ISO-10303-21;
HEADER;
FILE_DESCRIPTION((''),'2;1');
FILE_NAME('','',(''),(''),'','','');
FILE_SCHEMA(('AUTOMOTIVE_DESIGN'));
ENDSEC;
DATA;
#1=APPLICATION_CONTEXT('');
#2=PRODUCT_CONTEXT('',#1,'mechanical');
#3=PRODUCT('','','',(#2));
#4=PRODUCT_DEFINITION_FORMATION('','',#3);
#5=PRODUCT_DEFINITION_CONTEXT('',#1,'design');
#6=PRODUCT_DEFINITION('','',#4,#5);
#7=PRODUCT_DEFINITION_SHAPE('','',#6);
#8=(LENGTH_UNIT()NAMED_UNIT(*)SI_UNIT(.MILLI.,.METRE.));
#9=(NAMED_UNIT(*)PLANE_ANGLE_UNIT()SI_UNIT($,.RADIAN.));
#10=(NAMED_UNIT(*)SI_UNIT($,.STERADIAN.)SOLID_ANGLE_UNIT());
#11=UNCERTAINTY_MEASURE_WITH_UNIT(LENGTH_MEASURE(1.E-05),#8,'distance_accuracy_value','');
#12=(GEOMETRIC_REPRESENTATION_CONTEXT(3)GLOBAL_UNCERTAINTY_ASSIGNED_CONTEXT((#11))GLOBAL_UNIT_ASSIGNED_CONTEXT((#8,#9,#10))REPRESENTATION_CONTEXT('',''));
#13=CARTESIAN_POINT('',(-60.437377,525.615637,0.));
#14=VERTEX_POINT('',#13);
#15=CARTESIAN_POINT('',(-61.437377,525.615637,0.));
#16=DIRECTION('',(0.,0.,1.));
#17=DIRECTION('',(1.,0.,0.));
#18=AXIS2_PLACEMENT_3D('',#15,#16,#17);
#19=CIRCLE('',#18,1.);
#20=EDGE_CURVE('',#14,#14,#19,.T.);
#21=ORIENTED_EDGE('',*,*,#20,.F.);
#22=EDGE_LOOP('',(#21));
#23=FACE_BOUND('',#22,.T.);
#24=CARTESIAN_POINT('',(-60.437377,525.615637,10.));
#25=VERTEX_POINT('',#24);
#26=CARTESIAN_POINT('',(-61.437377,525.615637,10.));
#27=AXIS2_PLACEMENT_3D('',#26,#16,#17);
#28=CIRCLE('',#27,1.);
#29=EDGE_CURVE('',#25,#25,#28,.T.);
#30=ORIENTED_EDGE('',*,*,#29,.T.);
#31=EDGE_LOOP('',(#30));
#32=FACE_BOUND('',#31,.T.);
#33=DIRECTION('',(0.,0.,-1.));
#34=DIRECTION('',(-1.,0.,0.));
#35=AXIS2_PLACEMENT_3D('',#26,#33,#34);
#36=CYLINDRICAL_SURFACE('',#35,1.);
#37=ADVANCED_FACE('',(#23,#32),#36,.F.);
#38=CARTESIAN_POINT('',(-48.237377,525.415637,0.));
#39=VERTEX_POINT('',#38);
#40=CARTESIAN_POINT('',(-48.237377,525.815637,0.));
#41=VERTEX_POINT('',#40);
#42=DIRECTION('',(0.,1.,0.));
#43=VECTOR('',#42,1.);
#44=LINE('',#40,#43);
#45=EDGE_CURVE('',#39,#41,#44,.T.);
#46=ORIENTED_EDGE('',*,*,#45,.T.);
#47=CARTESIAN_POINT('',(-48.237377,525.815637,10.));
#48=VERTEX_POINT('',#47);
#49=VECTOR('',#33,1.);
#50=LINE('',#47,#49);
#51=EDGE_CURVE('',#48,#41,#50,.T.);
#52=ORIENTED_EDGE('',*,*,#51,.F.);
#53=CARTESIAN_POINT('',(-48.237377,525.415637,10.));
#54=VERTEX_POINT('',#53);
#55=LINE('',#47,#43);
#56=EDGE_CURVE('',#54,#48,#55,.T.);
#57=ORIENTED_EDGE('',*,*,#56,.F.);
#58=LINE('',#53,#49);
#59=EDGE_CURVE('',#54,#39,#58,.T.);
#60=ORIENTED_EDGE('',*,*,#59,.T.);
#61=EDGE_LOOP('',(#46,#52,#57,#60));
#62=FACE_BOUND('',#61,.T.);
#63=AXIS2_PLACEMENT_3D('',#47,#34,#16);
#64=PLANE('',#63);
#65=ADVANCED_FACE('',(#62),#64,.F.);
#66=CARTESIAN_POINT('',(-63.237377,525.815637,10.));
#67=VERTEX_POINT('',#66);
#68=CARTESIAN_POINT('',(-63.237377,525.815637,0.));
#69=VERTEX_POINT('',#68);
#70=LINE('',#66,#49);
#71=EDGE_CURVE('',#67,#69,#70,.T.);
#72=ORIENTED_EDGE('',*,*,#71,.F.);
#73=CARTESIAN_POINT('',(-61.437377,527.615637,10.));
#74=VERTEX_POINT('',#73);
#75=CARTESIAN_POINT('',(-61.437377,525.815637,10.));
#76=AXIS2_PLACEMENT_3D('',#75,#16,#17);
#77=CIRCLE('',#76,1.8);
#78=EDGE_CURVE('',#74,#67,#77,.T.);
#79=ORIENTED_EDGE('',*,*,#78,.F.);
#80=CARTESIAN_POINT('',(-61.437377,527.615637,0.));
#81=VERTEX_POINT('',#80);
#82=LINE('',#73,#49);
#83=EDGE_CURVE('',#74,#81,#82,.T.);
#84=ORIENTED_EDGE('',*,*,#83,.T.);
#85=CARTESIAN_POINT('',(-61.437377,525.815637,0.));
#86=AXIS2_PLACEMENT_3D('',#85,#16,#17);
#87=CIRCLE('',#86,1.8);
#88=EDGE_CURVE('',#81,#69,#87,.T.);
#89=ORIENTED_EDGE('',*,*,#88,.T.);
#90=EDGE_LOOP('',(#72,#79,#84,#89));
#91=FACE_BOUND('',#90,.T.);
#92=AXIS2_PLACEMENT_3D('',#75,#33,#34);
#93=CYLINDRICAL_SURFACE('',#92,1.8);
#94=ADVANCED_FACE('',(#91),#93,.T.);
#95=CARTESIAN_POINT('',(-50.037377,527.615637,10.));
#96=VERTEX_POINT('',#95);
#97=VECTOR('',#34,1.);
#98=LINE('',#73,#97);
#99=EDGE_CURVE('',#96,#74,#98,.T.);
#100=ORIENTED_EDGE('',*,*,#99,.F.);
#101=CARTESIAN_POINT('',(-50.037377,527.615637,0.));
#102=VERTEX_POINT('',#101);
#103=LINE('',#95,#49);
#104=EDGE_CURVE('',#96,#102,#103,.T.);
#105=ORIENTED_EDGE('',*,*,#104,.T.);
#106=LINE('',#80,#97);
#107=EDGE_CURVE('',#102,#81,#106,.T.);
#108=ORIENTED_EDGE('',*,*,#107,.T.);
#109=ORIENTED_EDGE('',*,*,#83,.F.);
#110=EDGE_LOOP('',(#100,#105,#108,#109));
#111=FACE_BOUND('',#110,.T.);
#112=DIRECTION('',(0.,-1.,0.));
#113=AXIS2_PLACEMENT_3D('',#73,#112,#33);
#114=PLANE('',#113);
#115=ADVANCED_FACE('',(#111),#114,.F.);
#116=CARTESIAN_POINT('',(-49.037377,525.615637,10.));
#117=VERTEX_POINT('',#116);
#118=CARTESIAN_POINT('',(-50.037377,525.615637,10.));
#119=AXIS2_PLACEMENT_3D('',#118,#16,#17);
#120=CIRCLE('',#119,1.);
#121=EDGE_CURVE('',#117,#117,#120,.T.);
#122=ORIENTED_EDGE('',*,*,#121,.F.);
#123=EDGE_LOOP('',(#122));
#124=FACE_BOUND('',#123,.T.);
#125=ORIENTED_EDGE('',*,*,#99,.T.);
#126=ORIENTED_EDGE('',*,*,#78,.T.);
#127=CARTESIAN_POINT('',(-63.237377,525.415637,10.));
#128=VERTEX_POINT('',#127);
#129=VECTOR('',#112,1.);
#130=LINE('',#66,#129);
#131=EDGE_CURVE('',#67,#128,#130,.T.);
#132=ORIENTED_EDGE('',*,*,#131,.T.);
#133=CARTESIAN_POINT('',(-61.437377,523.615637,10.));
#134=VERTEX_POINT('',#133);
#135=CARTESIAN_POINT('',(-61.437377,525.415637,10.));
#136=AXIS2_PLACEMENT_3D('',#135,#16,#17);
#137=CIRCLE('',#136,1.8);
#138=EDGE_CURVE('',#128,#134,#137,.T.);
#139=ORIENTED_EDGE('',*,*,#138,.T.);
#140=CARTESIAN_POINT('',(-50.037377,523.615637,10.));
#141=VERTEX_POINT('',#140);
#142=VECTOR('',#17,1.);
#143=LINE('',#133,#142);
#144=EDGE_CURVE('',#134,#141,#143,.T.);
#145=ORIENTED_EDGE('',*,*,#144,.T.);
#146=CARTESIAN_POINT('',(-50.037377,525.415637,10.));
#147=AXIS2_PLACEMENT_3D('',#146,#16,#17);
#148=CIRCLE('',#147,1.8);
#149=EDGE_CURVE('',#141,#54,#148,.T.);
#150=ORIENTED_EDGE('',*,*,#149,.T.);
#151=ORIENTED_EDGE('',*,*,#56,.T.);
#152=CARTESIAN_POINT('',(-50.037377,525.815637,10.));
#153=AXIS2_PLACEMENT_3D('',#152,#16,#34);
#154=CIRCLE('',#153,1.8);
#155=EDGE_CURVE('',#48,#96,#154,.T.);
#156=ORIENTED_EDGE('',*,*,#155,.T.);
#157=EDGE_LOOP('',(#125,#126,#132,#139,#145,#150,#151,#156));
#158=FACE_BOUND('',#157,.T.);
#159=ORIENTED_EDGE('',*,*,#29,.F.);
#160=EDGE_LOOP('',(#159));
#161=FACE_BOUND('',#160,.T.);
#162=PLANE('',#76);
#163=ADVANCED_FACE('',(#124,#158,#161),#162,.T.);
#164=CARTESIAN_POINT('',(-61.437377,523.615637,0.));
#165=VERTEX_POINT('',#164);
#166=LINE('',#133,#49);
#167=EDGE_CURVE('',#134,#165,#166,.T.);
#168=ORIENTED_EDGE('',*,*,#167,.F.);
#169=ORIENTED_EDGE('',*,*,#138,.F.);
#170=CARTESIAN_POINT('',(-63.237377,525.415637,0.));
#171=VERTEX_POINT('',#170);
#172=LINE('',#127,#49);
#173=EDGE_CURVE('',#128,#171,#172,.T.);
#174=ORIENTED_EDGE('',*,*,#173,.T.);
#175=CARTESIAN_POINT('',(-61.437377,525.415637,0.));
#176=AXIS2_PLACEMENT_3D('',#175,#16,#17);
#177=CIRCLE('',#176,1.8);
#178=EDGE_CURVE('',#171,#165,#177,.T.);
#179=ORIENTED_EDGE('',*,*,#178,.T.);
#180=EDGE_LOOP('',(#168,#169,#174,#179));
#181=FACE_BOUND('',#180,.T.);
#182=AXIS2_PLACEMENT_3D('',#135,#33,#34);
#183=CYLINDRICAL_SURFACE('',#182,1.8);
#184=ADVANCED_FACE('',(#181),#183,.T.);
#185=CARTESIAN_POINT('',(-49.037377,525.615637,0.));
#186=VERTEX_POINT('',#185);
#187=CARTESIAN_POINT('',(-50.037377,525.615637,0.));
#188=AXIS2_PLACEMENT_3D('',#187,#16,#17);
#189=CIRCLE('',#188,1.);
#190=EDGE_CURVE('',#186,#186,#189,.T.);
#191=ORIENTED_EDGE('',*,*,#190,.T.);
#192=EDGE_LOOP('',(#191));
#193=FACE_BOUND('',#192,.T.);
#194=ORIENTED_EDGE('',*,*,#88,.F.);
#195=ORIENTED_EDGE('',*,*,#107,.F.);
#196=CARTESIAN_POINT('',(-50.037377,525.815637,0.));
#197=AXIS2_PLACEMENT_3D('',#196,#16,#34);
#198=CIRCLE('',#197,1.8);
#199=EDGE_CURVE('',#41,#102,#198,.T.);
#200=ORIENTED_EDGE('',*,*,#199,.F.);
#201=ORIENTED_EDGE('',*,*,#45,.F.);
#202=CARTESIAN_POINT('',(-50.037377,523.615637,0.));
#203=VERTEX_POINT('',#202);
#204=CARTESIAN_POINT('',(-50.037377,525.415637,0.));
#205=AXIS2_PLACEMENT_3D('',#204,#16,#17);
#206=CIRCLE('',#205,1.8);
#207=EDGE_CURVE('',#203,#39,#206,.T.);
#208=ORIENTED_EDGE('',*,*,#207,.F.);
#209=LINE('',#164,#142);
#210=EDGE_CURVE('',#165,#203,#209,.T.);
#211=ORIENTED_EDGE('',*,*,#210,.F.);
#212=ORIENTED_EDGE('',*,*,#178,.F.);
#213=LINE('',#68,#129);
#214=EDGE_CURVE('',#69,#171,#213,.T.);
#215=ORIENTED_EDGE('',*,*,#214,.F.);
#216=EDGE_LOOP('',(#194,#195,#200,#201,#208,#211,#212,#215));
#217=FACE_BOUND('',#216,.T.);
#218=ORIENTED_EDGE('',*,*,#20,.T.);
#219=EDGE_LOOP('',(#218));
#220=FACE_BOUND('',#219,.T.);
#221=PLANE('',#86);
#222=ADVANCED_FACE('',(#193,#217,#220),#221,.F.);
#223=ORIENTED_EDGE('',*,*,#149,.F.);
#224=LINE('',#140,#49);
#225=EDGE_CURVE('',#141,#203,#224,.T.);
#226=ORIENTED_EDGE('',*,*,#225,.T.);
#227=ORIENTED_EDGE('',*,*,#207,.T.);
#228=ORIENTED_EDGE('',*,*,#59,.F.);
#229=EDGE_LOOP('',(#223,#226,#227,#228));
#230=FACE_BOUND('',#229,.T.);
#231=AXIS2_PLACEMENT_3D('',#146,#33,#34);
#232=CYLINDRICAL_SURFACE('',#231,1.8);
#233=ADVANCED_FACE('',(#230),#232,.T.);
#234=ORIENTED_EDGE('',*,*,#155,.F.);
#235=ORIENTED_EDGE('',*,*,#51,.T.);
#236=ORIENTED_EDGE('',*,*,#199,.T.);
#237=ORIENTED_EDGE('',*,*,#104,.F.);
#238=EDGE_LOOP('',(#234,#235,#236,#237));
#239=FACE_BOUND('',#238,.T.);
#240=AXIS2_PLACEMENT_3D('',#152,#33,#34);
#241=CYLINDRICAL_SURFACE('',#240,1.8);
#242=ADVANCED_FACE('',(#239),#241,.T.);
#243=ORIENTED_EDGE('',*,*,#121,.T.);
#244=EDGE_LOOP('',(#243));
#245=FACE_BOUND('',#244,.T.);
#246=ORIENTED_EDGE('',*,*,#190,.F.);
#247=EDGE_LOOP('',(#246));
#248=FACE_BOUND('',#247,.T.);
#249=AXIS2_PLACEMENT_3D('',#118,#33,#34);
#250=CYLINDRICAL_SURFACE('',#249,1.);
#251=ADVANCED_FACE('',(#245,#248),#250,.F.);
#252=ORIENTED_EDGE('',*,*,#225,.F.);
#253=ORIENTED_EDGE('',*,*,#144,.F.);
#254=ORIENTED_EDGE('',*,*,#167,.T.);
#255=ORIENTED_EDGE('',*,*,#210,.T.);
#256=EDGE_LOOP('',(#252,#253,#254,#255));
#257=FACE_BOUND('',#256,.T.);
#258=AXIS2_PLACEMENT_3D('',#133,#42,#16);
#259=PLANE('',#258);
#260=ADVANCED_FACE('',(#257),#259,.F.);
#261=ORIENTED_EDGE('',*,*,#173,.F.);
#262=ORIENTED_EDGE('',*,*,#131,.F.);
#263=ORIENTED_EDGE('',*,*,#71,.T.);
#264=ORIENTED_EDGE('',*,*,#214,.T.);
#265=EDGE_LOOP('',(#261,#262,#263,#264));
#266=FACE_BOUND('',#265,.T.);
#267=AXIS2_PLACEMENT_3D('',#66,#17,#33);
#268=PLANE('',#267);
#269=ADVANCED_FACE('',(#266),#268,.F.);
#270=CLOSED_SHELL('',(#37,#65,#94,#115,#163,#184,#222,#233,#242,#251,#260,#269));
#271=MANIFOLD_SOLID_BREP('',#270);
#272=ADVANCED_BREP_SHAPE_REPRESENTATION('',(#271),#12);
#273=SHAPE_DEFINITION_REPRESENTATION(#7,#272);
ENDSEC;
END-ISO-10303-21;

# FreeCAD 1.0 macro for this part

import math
import FreeCAD as App
import Part
import Sketcher

V = App.Vector

doc = App.newDocument("Part")
body = doc.addObject("PartDesign::Body", "Body")

# Sketch on XY plane
sketch1 = body.newObject("Sketcher::SketchObject", "Sketch")
sketch1.AttachmentSupport = (doc.getObject("XY_Plane"), [""])
sketch1.MapMode = "FlatFace"
sketch1.addGeometry([
    Part.LineSegment(V(-50.04, 527.62, 0), V(-61.44, 527.62, 0)),  # 0
    Part.ArcOfCircle(Part.Circle(V(-61.44, 525.82, 0), V(0, 0, 1), 1.8), math.radians(90), math.radians(180)),  # 1
    Part.LineSegment(V(-63.24, 525.82, 0), V(-63.24, 525.42, 0)),  # 2
    Part.ArcOfCircle(Part.Circle(V(-61.44, 525.42, 0), V(0, 0, 1), 1.8), math.radians(180), math.radians(270)),  # 3
    Part.LineSegment(V(-61.44, 523.62, 0), V(-50.04, 523.62, 0)),  # 4
    Part.ArcOfCircle(Part.Circle(V(-50.04, 525.42, 0), V(0, 0, 1), 1.8), math.radians(-90), math.radians(0)),  # 5
    Part.LineSegment(V(-48.24, 525.42, 0), V(-48.24, 525.82, 0)),  # 6
    Part.ArcOfCircle(Part.Circle(V(-50.04, 525.82, 0), V(0, 0, 1), 1.8), math.radians(0), math.radians(90)),  # 7
    Part.Circle(V(-50.04, 525.62, 0), V(0, 0, 1), 1),  # 8
    Part.Circle(V(-61.44, 525.62, 0), V(0, 0, 1), 1),  # 9
], False)
sketch1.addConstraint([
    Sketcher.Constraint("Tangent", 0, 2, 1, 1),
    Sketcher.Constraint("Tangent", 1, 2, 2, 1),
    Sketcher.Constraint("Tangent", 2, 2, 3, 1),
    Sketcher.Constraint("Tangent", 3, 2, 4, 1),
    Sketcher.Constraint("Tangent", 4, 2, 5, 1),
    Sketcher.Constraint("Tangent", 5, 2, 6, 1),
    Sketcher.Constraint("Tangent", 6, 2, 7, 1),
    Sketcher.Constraint("Tangent", 7, 2, 0, 1),
    Sketcher.Constraint("Horizontal", 0),
    Sketcher.Constraint("Vertical", 2),
    Sketcher.Constraint("Horizontal", 4),
    Sketcher.Constraint("Vertical", 6),
    Sketcher.Constraint("Equal", 1, 3),
    Sketcher.Constraint("Equal", 3, 5),
    Sketcher.Constraint("Equal", 5, 7),
    Sketcher.Constraint("Equal", 8, 9),
    Sketcher.Constraint("Horizontal", 8, 3, 9, 3),
    Sketcher.Constraint("Vertical", 7, 3, 8, 3),
    Sketcher.Constraint("Vertical", 3, 3, 9, 3),
    Sketcher.Constraint("Diameter", 8, 2.0),
    Sketcher.Constraint("Radius", 1, 1.8),
    Sketcher.Constraint("DistanceX", 0, 2, 0, 1, 11.4),
    Sketcher.Constraint("DistanceY", 2, 2, 2, 1, 0.4),
    Sketcher.Constraint("DistanceY", 9, 3, 0, 2, 2.0),
    Sketcher.Constraint("DistanceX", 1, 3, -1, 1, 61.437377),
    Sketcher.Constraint("DistanceY", -1, 1, 1, 3, 525.815637),
])
pad1 = body.newObject("PartDesign::Pad", "Pad")
pad1.Profile = sketch1
pad1.Length = 10

doc.recompute()
